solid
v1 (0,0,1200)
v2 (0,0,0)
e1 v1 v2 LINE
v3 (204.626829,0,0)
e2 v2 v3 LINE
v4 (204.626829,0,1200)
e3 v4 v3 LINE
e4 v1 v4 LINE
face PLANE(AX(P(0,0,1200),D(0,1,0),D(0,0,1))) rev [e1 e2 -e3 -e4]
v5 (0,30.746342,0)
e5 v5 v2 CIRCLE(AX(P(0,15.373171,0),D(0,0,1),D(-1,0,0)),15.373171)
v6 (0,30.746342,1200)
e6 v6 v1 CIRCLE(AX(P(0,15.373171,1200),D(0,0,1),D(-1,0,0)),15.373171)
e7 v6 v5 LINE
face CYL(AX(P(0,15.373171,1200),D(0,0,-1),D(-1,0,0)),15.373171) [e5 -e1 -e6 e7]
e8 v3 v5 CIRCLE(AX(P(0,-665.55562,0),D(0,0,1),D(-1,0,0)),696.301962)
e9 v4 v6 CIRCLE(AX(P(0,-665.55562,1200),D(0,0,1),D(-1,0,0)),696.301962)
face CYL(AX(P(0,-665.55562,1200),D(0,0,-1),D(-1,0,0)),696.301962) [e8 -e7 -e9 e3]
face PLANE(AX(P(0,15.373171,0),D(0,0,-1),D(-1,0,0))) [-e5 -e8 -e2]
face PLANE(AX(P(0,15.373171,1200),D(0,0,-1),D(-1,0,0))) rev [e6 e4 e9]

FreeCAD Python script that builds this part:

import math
import FreeCAD as App
import Part
import Sketcher
from FreeCAD import Vector
Q = App.Units.Quantity

doc = App.newDocument("Part")
params = doc.addObject("Spreadsheet::Sheet", "Params")
for row, (alias, value) in enumerate([
    ("pad1_length", "1200 mm"),
], start=1):
    params.set(f"A{row}", alias)
    params.set(f"B{row}", "=" + value)
    params.setAlias(f"B{row}", alias)

body = doc.addObject("PartDesign::Body", "Body")

# Sketch on XY plane
sketch1 = doc.addObject("Sketcher::SketchObject", "Sketch")
body.addObject(sketch1)
sketch1.AttachmentSupport = (doc.XY_Plane, [""])
sketch1.MapMode = "FlatFace"
sketch1.addGeometry([
    Part.LineSegment(Vector(0, 0, 0), Vector(205, 0, 0)),
    Part.ArcOfCircle(Part.Circle(Vector(0, -666, 0), Vector(0, 0, 1), 696), math.radians(72.91), math.radians(90)),
    Part.ArcOfCircle(Part.Circle(Vector(0, 15, 0), Vector(0, 0, 1), 15), math.radians(90), math.radians(270)),
], False)
sketch1.addConstraint([
    Sketcher.Constraint("Coincident", 0, 2, 1, 1),
    Sketcher.Constraint("Tangent", 1, 2, 2, 1),
    Sketcher.Constraint("Tangent", 2, 2, 0, 1),
    Sketcher.Constraint("Horizontal", 0),
    Sketcher.Constraint("Coincident", 2, 2, -1, 1),
    Sketcher.Constraint("PointOnObject", 1, 3, -2),
    Sketcher.Constraint("Radius", 2, Q("15.373171 mm")),
    Sketcher.Constraint("Radius", 1, Q("696.301962 mm")),
])
pad1 = doc.addObject("PartDesign::Pad", "Pad")
body.addObject(pad1)
pad1.Profile = sketch1
pad1.setExpression("Length", "Params.pad1_length")

doc.recompute()
